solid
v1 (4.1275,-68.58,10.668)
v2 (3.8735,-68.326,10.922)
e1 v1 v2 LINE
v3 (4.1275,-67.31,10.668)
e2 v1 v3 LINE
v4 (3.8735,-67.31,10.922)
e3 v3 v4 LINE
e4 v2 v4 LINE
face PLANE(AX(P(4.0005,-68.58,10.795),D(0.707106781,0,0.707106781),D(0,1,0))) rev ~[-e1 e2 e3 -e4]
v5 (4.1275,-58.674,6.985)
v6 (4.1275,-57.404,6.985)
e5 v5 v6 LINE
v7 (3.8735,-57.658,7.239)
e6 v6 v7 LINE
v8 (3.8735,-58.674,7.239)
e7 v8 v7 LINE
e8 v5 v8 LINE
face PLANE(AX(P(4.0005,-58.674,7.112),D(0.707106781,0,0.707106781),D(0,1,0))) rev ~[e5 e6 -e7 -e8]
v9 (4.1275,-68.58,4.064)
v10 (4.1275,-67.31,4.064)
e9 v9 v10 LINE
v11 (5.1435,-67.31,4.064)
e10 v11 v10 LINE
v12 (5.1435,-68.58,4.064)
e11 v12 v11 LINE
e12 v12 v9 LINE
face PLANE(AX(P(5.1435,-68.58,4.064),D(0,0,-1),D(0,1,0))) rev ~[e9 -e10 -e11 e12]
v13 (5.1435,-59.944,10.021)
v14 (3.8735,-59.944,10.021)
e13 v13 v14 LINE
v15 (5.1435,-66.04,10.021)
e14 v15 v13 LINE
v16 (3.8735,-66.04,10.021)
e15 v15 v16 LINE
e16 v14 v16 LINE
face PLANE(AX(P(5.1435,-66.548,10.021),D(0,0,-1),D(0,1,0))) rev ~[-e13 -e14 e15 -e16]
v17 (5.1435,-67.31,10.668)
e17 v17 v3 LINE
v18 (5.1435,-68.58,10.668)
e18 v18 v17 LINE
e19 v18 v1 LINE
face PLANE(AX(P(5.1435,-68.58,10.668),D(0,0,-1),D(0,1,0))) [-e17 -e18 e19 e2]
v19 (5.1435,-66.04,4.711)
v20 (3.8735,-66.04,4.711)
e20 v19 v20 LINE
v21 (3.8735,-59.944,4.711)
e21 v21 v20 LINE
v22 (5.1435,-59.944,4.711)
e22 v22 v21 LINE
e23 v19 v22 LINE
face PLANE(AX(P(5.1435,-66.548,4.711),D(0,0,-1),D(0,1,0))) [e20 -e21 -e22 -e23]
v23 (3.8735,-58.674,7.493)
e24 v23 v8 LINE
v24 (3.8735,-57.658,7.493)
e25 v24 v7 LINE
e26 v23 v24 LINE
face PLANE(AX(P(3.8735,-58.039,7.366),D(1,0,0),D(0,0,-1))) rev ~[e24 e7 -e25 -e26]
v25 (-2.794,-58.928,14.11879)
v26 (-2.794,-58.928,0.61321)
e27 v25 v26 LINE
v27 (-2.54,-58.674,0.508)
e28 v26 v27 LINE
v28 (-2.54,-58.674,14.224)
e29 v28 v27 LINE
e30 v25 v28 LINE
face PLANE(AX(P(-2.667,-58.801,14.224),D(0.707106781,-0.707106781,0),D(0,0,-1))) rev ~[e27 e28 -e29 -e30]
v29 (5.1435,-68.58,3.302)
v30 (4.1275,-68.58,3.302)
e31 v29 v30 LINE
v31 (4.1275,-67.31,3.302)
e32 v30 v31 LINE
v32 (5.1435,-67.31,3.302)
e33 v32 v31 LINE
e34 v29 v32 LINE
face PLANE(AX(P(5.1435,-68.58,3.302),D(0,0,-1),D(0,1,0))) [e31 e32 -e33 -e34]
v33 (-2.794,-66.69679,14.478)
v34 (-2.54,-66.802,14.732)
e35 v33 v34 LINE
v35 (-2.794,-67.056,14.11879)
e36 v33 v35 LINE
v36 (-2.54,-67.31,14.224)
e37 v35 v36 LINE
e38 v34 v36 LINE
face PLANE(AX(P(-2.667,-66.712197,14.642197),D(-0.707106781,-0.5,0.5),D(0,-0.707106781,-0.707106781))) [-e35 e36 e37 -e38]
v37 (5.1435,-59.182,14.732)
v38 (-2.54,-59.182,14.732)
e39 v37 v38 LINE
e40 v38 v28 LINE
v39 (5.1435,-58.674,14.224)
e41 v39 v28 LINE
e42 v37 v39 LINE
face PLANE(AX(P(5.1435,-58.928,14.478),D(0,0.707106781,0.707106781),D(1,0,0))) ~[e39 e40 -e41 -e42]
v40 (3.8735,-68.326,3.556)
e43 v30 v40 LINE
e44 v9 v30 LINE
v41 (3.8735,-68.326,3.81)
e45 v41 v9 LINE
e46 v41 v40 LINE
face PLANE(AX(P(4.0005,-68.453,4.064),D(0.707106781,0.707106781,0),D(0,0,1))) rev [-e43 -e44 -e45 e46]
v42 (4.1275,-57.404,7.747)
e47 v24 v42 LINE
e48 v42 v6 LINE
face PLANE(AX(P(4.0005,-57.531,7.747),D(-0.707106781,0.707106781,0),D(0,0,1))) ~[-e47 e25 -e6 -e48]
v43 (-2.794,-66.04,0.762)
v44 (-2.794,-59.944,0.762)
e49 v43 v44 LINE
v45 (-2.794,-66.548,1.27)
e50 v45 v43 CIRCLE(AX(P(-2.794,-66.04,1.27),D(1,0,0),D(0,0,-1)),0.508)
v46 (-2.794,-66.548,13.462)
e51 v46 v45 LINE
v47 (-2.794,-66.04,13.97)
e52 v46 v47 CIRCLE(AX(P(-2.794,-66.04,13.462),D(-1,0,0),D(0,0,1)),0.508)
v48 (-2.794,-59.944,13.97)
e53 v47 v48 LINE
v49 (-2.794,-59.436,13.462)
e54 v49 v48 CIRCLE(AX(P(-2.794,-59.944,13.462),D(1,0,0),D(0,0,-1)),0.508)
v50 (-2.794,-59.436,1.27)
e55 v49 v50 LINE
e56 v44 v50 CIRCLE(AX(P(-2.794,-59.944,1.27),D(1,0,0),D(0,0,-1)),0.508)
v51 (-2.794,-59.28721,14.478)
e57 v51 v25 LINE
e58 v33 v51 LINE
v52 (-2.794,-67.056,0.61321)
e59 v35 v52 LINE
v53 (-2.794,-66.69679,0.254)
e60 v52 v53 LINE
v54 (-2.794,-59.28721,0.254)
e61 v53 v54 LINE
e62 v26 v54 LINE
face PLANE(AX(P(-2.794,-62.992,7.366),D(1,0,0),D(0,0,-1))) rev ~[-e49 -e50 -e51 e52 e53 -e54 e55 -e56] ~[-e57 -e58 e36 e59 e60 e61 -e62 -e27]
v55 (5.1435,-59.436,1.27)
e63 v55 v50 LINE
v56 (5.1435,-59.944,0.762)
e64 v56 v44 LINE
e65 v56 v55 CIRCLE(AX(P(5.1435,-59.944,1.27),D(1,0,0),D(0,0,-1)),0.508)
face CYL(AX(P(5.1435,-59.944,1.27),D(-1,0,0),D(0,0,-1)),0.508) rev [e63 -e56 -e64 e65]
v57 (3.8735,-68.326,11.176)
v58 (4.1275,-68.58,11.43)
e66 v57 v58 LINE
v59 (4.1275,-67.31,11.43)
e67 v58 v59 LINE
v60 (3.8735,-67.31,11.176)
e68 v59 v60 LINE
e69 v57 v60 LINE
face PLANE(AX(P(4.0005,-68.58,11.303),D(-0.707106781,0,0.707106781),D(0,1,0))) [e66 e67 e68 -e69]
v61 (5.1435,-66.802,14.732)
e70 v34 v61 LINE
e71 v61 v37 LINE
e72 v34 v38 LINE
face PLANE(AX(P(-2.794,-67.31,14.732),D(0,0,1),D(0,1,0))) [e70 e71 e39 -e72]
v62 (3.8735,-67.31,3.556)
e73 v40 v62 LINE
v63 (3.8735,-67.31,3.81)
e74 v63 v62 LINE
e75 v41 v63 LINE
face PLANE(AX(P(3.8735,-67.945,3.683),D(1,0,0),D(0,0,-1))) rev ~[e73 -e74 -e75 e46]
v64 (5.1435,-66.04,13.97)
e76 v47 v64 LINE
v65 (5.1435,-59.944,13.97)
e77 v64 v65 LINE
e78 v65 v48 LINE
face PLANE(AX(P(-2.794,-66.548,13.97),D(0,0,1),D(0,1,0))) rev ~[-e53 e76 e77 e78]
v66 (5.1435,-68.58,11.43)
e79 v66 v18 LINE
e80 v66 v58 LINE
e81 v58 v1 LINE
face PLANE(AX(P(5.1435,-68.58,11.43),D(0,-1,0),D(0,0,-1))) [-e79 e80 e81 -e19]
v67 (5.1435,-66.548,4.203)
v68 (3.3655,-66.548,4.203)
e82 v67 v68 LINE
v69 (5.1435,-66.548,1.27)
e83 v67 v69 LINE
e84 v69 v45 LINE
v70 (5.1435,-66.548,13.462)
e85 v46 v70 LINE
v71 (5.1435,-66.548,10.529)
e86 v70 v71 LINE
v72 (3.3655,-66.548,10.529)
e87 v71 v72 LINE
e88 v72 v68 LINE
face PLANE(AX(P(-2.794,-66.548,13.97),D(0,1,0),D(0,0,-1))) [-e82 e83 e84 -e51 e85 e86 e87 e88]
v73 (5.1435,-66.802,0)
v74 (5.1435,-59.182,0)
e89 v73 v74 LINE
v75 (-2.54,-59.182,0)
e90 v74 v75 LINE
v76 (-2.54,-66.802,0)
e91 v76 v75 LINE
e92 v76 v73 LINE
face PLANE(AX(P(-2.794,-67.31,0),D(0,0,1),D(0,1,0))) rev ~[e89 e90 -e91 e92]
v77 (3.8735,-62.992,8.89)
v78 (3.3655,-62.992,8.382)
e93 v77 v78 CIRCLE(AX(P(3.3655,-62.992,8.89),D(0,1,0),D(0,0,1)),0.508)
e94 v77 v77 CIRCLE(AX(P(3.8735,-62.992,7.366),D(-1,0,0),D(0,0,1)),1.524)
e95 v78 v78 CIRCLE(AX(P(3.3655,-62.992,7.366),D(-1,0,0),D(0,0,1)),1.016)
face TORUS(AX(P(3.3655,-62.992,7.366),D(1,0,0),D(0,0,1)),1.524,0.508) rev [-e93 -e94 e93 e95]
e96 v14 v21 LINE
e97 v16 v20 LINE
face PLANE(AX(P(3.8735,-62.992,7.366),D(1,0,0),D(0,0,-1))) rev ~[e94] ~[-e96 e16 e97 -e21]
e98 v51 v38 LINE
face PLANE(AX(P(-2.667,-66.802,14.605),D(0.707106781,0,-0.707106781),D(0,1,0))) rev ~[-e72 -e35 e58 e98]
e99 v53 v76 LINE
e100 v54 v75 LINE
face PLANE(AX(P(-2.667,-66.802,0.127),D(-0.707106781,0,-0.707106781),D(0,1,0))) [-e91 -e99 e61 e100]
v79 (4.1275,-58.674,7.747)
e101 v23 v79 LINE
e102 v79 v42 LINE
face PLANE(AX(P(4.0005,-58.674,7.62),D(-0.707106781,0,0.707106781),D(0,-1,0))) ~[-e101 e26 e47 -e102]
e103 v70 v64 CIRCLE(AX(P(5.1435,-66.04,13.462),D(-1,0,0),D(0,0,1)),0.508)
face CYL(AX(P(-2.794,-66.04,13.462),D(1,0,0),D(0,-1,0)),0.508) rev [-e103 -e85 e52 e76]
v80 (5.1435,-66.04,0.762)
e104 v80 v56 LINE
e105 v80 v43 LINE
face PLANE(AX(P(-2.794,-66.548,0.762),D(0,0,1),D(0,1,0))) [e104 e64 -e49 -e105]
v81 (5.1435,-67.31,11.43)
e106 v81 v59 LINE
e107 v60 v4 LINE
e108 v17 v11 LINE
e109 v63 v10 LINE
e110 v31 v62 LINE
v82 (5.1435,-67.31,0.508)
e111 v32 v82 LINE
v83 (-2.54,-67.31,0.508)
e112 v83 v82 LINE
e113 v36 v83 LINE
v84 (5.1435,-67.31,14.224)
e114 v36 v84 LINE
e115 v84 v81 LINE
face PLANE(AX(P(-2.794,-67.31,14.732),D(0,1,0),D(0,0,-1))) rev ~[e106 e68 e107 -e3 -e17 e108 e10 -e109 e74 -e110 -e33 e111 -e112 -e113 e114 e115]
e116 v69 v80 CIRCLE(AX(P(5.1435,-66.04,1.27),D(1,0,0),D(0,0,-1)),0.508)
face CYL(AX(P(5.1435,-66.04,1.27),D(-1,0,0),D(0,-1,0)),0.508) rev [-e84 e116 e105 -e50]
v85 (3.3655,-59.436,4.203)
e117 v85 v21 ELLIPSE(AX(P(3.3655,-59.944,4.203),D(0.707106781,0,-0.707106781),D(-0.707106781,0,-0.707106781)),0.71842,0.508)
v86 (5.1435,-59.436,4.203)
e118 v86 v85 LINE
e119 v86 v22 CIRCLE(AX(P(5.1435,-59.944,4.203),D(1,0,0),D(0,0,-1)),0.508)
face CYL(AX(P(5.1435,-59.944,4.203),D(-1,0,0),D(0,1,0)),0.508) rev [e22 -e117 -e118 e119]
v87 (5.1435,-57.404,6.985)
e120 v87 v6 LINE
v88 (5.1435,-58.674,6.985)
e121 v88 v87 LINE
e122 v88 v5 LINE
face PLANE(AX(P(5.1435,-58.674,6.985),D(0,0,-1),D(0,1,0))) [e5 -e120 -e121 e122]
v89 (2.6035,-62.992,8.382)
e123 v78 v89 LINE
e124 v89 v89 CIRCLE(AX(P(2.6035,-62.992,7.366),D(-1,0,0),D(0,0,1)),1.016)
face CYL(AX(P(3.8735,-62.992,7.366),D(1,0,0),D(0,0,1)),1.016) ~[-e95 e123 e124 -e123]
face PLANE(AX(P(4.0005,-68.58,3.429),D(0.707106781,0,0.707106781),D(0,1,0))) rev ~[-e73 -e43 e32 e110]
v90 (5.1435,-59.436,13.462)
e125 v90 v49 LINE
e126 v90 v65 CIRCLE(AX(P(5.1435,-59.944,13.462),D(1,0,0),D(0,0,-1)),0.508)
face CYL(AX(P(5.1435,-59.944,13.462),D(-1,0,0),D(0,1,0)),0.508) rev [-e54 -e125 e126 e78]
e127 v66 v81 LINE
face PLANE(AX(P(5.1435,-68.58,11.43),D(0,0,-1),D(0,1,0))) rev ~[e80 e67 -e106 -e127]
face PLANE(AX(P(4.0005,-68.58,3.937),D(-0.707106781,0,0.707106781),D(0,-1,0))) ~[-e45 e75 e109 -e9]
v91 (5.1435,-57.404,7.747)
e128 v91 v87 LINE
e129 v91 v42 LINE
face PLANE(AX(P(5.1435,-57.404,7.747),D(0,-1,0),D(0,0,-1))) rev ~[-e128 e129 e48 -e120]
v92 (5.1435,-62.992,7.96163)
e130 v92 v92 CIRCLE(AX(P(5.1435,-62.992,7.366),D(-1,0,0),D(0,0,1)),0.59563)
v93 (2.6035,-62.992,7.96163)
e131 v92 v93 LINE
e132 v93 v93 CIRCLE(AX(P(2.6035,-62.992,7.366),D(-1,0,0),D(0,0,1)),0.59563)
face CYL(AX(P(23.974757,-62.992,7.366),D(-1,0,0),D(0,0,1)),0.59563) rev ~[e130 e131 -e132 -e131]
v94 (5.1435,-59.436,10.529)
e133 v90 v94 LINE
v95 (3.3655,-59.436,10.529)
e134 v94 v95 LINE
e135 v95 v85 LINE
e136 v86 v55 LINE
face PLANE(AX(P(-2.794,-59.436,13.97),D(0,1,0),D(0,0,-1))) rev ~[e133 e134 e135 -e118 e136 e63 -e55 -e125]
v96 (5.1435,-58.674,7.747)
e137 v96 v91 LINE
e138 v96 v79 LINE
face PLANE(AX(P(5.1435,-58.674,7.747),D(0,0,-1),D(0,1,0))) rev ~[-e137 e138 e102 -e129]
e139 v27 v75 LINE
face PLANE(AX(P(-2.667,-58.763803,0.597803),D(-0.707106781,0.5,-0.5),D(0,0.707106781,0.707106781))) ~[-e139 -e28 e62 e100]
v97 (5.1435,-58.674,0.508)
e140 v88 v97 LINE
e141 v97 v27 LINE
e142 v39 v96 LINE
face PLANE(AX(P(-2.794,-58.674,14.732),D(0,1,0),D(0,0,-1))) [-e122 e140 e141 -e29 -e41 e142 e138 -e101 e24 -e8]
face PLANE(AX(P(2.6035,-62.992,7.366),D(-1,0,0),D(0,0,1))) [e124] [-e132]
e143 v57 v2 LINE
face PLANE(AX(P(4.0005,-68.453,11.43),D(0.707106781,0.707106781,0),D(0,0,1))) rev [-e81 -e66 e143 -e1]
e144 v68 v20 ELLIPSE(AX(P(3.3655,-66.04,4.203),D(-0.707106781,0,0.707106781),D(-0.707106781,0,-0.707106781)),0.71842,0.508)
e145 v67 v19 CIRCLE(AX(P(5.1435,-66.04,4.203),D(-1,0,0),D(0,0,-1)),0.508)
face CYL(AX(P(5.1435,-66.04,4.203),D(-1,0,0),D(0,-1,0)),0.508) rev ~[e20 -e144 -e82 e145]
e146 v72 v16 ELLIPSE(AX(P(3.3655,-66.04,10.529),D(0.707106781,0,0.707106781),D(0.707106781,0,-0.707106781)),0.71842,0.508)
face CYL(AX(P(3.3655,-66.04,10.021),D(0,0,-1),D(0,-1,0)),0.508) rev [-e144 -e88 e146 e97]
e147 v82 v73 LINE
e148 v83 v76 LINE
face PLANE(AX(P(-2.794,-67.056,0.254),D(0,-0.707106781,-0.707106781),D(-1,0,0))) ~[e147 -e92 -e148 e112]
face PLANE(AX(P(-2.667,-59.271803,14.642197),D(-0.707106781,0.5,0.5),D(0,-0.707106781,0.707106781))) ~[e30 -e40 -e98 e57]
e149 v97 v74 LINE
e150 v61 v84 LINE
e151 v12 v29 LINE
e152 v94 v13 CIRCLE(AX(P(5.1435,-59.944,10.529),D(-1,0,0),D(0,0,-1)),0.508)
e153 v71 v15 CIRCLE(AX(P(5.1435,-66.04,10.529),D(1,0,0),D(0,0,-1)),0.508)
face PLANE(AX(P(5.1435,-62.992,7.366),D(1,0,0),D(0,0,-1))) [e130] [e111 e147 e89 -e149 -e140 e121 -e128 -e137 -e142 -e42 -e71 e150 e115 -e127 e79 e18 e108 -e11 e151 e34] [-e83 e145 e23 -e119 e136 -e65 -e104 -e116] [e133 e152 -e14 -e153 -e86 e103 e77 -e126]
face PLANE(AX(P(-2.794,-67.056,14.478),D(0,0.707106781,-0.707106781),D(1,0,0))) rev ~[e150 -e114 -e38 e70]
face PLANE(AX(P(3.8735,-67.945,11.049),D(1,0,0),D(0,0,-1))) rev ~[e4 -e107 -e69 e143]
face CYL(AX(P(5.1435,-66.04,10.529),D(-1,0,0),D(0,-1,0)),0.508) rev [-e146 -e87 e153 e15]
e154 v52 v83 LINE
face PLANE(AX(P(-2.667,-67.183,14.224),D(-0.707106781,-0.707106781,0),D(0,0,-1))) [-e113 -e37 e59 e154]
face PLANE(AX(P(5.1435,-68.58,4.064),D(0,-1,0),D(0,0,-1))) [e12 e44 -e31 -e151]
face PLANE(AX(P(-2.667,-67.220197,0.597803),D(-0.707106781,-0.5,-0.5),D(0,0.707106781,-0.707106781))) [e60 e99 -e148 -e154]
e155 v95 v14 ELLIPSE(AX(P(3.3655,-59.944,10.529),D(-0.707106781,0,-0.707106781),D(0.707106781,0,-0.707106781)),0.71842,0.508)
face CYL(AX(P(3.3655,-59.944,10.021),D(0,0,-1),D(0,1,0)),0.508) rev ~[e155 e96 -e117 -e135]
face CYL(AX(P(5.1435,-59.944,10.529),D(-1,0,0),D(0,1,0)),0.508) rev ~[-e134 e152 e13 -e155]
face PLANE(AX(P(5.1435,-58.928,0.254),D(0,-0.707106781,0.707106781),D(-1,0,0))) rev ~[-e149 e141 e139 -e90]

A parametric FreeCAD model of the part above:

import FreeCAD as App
import Part
import Sketcher
from FreeCAD import Vector
Q = App.Units.Quantity


def edges_at(feature, points):
    """Names of the edges that pass closest to the given points."""
    edges = feature.Shape.Edges
    near = lambda p: min(range(len(edges)), key=lambda i: edges[i].distToShape(Part.Vertex(*p))[0])
    return sorted({f"Edge{near(p) + 1}" for p in points})


def add_polygon(sketch, points):
    """Adds a closed chain of lines whose ends are joined by coincident constraints."""
    first, n = sketch.GeometryCount, len(points)
    for a, b in zip(points, points[1:] + points[:1]):
        sketch.addGeometry(Part.LineSegment(App.Vector(*a, 0), App.Vector(*b, 0)), False)
    for i in range(n):
        sketch.addConstraint(Sketcher.Constraint("Coincident", first + i, 2, first + (i + 1) % n, 1))

doc = App.newDocument("Part")
body = doc.addObject("PartDesign::Body", "Body")

sketch1 = body.newObject("Sketcher::SketchObject", "Sketch")
sketch1.AttachmentSupport = (doc.getObject("YZ_Plane"), [""])
sketch1.MapMode = "FlatFace"
sketch1.AttachmentOffset = App.Placement(Vector(0, 0, -0.11 * 25.4), App.Rotation())
add_polygon(sketch1, [(-58.674, 14.732), (-67.31, 14.732), (-67.31, 0), (-58.674, 0)])
add_polygon(sketch1, [(-66.548, 0.762), (-66.548, 13.97), (-59.436, 13.97), (-59.436, 0.762)])
sketch1.addConstraint([
    Sketcher.Constraint("Horizontal", 0),
    Sketcher.Constraint("Vertical", 1),
    Sketcher.Constraint("Horizontal", 2),
    Sketcher.Constraint("Vertical", 3),
    Sketcher.Constraint("Vertical", 4),
    Sketcher.Constraint("Horizontal", 5),
    Sketcher.Constraint("Vertical", 6),
    Sketcher.Constraint("Horizontal", 7),
    Sketcher.Constraint("PointOnObject", 1, 2, -1),
    Sketcher.Constraint("DistanceX", 0, 2, 0, 1, Q("0.34 in")),
    Sketcher.Constraint("DistanceX", 5, 1, 5, 2, Q("0.28 in")),
    Sketcher.Constraint("DistanceY", 1, 2, 1, 1, Q("0.58 in")),
    Sketcher.Constraint("DistanceY", 4, 1, 4, 2, Q("0.52 in")),
    Sketcher.Constraint("DistanceX", 0, 2, -1, 1, Q("2.65 in")),
    Sketcher.Constraint("DistanceX", 4, 2, -1, 1, Q("2.62 in")),
    Sketcher.Constraint("DistanceY", -1, 1, 4, 2, Q("0.55 in")),
])
pad1 = body.newObject("PartDesign::Pad", "Pad")
pad1.Profile = sketch1
pad1.Length = Q("0.3125 in")

sketch2 = body.newObject("Sketcher::SketchObject", "Sketch001")
sketch2.AttachmentSupport = (doc.getObject("YZ_Plane"), [""])
sketch2.MapMode = "FlatFace"
sketch2.AttachmentOffset = App.Placement(Vector(0, 0, 0.2025 * 25.4), App.Rotation())
add_polygon(sketch2, [(-58.674, 14.732), (-67.31, 14.732), (-67.31, 0), (-58.674, 0)])
sketch2.addConstraint([
    Sketcher.Constraint("Horizontal", 0),
    Sketcher.Constraint("Vertical", 1),
    Sketcher.Constraint("Horizontal", 2),
    Sketcher.Constraint("Vertical", 3),
    Sketcher.Constraint("PointOnObject", 1, 2, -1),
    Sketcher.Constraint("DistanceX", 0, 2, 0, 1, Q("0.34 in")),
    Sketcher.Constraint("DistanceY", 1, 2, 1, 1, Q("0.58 in")),
    Sketcher.Constraint("DistanceX", 0, 2, -1, 1, Q("2.65 in")),
])
pad2 = body.newObject("PartDesign::Pad", "Pad001")
pad2.Profile = sketch2
pad2.Length = Q("0.05 in")
pad2.Reversed = True

sketch3 = body.newObject("Sketcher::SketchObject", "Sketch002")
sketch3.AttachmentSupport = (doc.getObject("YZ_Plane"), [""])
sketch3.MapMode = "FlatFace"
sketch3.AttachmentOffset = App.Placement(Vector(0, 0, 0.2025 * 25.4), App.Rotation())
add_polygon(sketch3, [(-59.436, 4.711), (-66.548, 4.711), (-66.548, 0.762), (-59.436, 0.762)])
sketch3.addConstraint([
    Sketcher.Constraint("Horizontal", 0),
    Sketcher.Constraint("Vertical", 1),
    Sketcher.Constraint("Horizontal", 2),
    Sketcher.Constraint("Vertical", 3),
    Sketcher.Constraint("DistanceX", 0, 2, 0, 1, Q("0.28 in")),
    Sketcher.Constraint("DistanceX", 0, 2, -1, 1, Q("2.62 in")),
    Sketcher.Constraint("DistanceY", -1, 1, 1, 2, Q("0.03 in")),
    Sketcher.Constraint("DistanceY", 1, 2, 1, 1, Q("3.949 mm")),
])
pocket1 = body.newObject("PartDesign::Pocket", "Pocket")
pocket1.Profile = sketch3
pocket1.Type = "UpToFirst"

sketch4 = body.newObject("Sketcher::SketchObject", "Sketch003")
sketch4.AttachmentSupport = (doc.getObject("YZ_Plane"), [""])
sketch4.MapMode = "FlatFace"
sketch4.AttachmentOffset = App.Placement(Vector(0, 0, 0.2025 * 25.4), App.Rotation())
add_polygon(sketch4, [(-59.436, 13.97), (-66.548, 13.97), (-66.548, 10.021), (-59.436, 10.021)])
sketch4.addConstraint([
    Sketcher.Constraint("Horizontal", 0),
    Sketcher.Constraint("Vertical", 1),
    Sketcher.Constraint("Horizontal", 2),
    Sketcher.Constraint("Vertical", 3),
    Sketcher.Constraint("DistanceX", 0, 2, 0, 1, Q("0.28 in")),
    Sketcher.Constraint("DistanceX", 0, 2, -1, 1, Q("2.62 in")),
    Sketcher.Constraint("DistanceY", -1, 1, 0, 2, Q("0.55 in")),
    Sketcher.Constraint("DistanceY", 1, 2, 1, 1, Q("3.949 mm")),
])
pocket2 = body.newObject("PartDesign::Pocket", "Pocket001")
pocket2.Profile = sketch4
pocket2.Type = "UpToFirst"

sketch5 = body.newObject("Sketcher::SketchObject", "Sketch004")
sketch5.AttachmentSupport = (doc.getObject("YZ_Plane"), [""])
sketch5.MapMode = "FlatFace"
sketch5.AttachmentOffset = App.Placement(Vector(0, 0, 0.1525 * 25.4), App.Rotation())
sketch5.addGeometry(Part.Circle(Vector(-62.992, 7.366, 0), Vector(0, 0, 1), 1.016), False)
sketch5.addConstraint([
    Sketcher.Constraint("Diameter", 0, Q("0.08 in")),
    Sketcher.Constraint("DistanceX", 0, 3, -1, 1, Q("2.48 in")),
    Sketcher.Constraint("DistanceY", -1, 1, 0, 3, Q("0.29 in")),
])
pad3 = body.newObject("PartDesign::Pad", "Pad002")
pad3.Profile = sketch5
pad3.Length = Q("0.05 in")
pad3.Reversed = True

sketch6 = body.newObject("Sketcher::SketchObject", "Sketch005")
sketch6.AttachmentSupport = (doc.getObject("YZ_Plane"), [""])
sketch6.MapMode = "FlatFace"
sketch6.AttachmentOffset = App.Placement(Vector(0, 0, 0.2025 * 25.4), App.Rotation())
sketch6.addGeometry(Part.Circle(Vector(-62.992, 7.366, 0), Vector(0, 0, 1), 0.59563), False)
sketch6.addConstraint([
    Sketcher.Constraint("Diameter", 0, Q("0.0469 in")),
    Sketcher.Constraint("DistanceX", 0, 3, -1, 1, Q("2.48 in")),
    Sketcher.Constraint("DistanceY", -1, 1, 0, 3, Q("0.29 in")),
])
doc.recompute()
hole = body.newObject("PartDesign::Hole", "Hole")
hole.Profile = sketch6
hole.ThreadType = "None"
hole.Diameter = Q("0.0469 in")
hole.DepthType = "ThroughAll"

sketch7 = body.newObject("Sketcher::SketchObject", "Sketch006")
sketch7.AttachmentSupport = (doc.getObject("YZ_Plane"), [""])
sketch7.MapMode = "FlatFace"
sketch7.AttachmentOffset = App.Placement(Vector(0, 0, 0.2025 * 25.4), App.Rotation())
add_polygon(sketch7, [(-57.404, 7.747), (-58.674, 7.747), (-58.674, 6.985), (-57.404, 6.985)])
add_polygon(sketch7, [(-67.31, 11.43), (-68.58, 11.43), (-68.58, 10.668), (-67.31, 10.668)])
add_polygon(sketch7, [(-67.31, 4.064), (-68.58, 4.064), (-68.58, 3.302), (-67.31, 3.302)])
sketch7.addConstraint([
    Sketcher.Constraint("Horizontal", 0),
    Sketcher.Constraint("Vertical", 1),
    Sketcher.Constraint("Horizontal", 2),
    Sketcher.Constraint("Vertical", 3),
    Sketcher.Constraint("Horizontal", 4),
    Sketcher.Constraint("Vertical", 5),
    Sketcher.Constraint("Horizontal", 6),
    Sketcher.Constraint("Vertical", 7),
    Sketcher.Constraint("Horizontal", 8),
    Sketcher.Constraint("Vertical", 9),
    Sketcher.Constraint("Horizontal", 10),
    Sketcher.Constraint("Vertical", 11),
    Sketcher.Constraint("Vertical", 5, 2, 8, 2),
    Sketcher.Constraint("Vertical", 7, 2, 10, 2),
    Sketcher.Constraint("Equal", 2, 4),
    Sketcher.Constraint("Equal", 3, 5),
    Sketcher.Constraint("Equal", 7, 9),
    Sketcher.Constraint("DistanceX", 0, 2, 0, 1, Q("0.05 in")),
    Sketcher.Constraint("DistanceY", 1, 2, 1, 1, Q("0.03 in")),
    Sketcher.Constraint("DistanceX", 4, 2, -1, 1, Q("2.7 in")),
    Sketcher.Constraint("DistanceX", 0, 2, -1, 1, Q("2.31 in")),
    Sketcher.Constraint("DistanceY", -1, 1, 4, 2, Q("0.45 in")),
    Sketcher.Constraint("DistanceY", -1, 1, 8, 2, Q("0.16 in")),
    Sketcher.Constraint("DistanceY", -1, 1, 0, 2, Q("0.305 in")),
])
pad4 = body.newObject("PartDesign::Pad", "Pad003")
pad4.Profile = sketch7
pad4.Length = Q("0.05 in")
pad4.Reversed = True
doc.recompute()

fillet = body.newObject("PartDesign::Fillet", "Fillet")
fillet.Base = (pad4, edges_at(pad4, [
    (3.873, -66.548, 7.366),
    (1.175, -59.436, 13.97),
    (1.175, -59.436, 0.762),
    (1.175, -66.548, 0.762),
    (3.873, -59.436, 7.366),
    (1.175, -66.548, 13.97),
    (4.508, -59.436, 10.021),
    (4.508, -59.436, 4.711),
    (4.508, -66.548, 4.711),
    (4.508, -66.548, 10.021),
    (3.873, -62.992, 6.35),
]))
fillet.Radius = Q("0.02 in")
doc.recompute()

chamfer = body.newObject("PartDesign::Chamfer", "Chamfer")
chamfer.Base = (fillet, edges_at(fillet, [
    (1.175, -67.31, 14.732),
    (1.175, -67.31, 0),
    (1.175, -58.674, 0),
    (1.175, -58.674, 14.732),
]))
chamfer.Size = Q("0.02 in")
doc.recompute()

chamfer2 = body.newObject("PartDesign::Chamfer", "Chamfer001")
chamfer2.Base = (chamfer, edges_at(chamfer, [
    (-2.794, -67.056, 14.478),
    (-2.794, -67.31, 7.366),
    (-2.794, -67.056, 0.254),
    (-2.794, -62.992, 0),
    (-2.794, -58.928, 0.254),
    (-2.794, -62.992, 14.732),
    (-2.794, -58.928, 14.478),
    (-2.794, -58.674, 7.366),
    (3.873, -58.039, 6.985),
    (3.873, -57.404, 7.366),
    (3.873, -58.039, 7.747),
    (3.873, -67.945, 10.668),
    (3.873, -68.58, 11.049),
    (3.873, -67.945, 11.43),
    (3.873, -67.945, 3.302),
    (3.873, -68.58, 3.683),
    (3.873, -67.945, 4.064),
]))
chamfer2.Size = Q("0.01 in")

doc.recompute()
